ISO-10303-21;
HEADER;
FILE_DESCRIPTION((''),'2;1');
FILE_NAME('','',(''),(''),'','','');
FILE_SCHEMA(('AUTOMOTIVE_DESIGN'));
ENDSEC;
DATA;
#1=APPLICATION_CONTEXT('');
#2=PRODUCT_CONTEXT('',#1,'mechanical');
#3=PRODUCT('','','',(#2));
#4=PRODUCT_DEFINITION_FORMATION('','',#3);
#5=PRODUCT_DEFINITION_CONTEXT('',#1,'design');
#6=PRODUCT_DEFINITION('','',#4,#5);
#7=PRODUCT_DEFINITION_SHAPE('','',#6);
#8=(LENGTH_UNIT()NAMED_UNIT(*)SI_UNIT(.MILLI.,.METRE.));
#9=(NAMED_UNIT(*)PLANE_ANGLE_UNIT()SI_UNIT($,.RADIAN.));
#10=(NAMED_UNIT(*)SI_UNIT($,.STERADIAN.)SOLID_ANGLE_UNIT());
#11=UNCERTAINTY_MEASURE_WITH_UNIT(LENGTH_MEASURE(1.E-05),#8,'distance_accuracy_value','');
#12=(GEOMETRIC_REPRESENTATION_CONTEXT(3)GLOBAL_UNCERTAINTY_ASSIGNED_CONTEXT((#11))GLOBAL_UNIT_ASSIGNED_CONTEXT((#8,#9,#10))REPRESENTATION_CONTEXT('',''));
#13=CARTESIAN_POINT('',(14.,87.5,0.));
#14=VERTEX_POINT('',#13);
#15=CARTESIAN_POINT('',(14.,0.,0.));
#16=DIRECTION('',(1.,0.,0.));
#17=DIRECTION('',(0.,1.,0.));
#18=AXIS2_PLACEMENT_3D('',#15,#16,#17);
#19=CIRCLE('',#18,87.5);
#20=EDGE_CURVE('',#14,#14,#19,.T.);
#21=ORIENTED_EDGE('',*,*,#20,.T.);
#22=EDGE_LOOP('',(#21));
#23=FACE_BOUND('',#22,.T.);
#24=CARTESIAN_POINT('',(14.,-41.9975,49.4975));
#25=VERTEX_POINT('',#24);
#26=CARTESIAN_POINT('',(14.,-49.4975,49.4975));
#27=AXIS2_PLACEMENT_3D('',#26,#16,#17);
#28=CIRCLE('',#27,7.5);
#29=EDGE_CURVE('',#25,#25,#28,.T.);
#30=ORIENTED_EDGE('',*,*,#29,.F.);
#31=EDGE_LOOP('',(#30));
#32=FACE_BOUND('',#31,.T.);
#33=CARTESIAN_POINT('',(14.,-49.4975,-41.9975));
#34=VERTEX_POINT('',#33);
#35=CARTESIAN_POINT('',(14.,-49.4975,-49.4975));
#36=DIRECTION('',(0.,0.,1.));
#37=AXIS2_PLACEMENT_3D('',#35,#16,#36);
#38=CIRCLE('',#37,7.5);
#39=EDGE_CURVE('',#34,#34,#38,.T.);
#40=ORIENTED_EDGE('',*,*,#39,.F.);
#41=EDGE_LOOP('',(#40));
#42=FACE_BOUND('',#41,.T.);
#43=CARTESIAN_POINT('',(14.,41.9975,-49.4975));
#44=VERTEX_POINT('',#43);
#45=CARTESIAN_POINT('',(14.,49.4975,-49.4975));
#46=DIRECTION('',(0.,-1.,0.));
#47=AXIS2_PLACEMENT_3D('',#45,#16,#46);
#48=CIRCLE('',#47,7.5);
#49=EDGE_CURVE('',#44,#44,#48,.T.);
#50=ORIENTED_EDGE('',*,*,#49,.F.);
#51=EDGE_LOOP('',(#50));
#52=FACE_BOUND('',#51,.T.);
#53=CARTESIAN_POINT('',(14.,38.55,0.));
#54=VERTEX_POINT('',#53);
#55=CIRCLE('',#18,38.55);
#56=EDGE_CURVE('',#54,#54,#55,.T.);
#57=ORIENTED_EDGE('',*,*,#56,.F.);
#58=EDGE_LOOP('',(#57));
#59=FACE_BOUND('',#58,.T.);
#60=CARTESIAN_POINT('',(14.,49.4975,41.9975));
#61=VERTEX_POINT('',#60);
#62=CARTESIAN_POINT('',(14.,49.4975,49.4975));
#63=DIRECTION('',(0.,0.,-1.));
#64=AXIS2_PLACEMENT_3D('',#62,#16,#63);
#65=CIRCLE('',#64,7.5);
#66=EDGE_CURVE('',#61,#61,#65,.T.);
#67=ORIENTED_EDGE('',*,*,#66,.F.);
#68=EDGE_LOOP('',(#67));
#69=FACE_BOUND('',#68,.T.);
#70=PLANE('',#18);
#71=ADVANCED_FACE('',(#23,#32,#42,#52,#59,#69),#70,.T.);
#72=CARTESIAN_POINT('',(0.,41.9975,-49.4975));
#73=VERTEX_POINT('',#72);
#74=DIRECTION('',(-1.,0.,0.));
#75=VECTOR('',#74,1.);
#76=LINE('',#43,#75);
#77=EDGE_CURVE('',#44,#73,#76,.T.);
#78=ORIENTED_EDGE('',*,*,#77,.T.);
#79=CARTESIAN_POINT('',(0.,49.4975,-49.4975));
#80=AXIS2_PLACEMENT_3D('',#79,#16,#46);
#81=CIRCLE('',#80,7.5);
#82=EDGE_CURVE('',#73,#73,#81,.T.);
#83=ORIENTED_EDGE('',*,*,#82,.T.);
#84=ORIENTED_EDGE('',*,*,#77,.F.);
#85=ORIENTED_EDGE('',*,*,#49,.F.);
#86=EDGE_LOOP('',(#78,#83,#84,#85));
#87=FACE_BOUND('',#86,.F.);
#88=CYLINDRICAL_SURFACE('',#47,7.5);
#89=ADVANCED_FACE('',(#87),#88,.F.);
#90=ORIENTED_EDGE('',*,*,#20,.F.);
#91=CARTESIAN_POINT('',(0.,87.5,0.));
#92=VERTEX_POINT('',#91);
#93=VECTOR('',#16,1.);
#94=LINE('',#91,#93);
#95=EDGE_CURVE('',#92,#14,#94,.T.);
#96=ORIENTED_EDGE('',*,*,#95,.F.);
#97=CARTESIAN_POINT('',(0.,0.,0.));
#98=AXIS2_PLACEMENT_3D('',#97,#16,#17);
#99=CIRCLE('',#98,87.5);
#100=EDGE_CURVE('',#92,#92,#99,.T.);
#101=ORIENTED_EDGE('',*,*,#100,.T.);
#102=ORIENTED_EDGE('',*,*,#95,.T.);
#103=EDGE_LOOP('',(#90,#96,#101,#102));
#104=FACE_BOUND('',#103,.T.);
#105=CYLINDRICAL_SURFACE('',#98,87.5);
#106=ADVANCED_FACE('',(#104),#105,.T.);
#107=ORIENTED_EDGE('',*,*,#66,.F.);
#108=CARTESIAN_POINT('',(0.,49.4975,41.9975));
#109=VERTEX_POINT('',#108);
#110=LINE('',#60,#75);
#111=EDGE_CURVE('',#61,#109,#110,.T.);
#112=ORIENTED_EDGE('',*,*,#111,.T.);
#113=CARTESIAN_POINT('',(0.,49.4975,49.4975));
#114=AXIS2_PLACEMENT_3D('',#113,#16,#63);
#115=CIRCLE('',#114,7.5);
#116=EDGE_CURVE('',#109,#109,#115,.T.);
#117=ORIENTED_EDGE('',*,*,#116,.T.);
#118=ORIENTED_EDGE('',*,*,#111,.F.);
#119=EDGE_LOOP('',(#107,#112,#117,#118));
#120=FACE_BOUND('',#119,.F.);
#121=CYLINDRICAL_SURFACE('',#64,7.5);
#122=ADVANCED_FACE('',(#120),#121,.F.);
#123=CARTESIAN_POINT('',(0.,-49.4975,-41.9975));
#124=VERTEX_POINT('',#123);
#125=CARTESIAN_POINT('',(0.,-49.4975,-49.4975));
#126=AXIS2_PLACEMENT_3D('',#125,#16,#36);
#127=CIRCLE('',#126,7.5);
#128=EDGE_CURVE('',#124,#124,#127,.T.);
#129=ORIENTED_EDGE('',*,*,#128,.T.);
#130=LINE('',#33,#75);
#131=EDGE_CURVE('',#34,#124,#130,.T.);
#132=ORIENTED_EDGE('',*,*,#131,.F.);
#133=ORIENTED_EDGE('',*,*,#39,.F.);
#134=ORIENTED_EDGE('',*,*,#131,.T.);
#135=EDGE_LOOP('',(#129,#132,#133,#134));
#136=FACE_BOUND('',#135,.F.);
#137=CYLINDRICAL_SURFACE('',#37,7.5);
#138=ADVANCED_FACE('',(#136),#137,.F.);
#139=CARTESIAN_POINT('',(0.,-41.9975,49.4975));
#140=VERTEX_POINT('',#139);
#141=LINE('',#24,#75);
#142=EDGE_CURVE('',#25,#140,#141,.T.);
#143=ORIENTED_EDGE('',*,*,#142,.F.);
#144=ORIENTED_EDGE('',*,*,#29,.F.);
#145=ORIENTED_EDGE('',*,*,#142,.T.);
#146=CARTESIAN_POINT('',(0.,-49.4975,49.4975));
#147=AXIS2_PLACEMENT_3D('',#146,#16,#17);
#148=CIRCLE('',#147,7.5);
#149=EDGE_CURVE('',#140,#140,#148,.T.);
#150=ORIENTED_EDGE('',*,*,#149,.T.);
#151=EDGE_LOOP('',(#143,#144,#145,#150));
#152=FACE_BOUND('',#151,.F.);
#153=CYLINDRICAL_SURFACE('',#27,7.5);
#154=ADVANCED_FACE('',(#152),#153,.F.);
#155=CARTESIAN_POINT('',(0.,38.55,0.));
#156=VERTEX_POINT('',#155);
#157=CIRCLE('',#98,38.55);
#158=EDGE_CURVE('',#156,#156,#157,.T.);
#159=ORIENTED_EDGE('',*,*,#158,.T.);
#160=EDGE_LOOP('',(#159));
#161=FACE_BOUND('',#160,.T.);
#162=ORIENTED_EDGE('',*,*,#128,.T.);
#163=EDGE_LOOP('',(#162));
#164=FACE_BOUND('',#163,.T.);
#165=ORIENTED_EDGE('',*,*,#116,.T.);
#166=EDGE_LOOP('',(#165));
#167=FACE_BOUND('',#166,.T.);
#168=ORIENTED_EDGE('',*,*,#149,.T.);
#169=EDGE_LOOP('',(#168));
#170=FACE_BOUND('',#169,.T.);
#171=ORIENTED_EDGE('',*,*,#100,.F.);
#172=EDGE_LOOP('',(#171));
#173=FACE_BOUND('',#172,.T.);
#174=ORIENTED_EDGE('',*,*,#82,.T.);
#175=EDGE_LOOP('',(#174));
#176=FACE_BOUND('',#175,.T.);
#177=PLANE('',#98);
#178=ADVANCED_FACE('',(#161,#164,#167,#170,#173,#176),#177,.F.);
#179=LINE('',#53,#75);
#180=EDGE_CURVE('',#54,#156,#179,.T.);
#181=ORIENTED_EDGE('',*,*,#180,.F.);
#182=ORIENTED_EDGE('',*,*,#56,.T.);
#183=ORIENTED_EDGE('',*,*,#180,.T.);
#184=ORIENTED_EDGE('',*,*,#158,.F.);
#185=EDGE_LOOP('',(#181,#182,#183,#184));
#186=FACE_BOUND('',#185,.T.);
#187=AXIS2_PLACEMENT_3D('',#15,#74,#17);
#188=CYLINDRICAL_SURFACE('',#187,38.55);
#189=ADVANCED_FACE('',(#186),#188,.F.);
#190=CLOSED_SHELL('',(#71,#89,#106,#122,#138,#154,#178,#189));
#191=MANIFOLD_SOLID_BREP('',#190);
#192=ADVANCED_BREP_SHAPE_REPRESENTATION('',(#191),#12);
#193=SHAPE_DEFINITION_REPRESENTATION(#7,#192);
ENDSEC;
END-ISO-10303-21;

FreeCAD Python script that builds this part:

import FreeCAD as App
import Part
import Sketcher
from FreeCAD import Vector

doc = App.newDocument("Part")
body = doc.addObject("PartDesign::Body", "Body")

# Sketch on XY plane
sketch1 = doc.addObject("Sketcher::SketchObject", "Sketch")
body.addObject(sketch1)
sketch1.AttachmentSupport = (doc.XY_Plane, [""])
sketch1.MapMode = "FlatFace"
sketch1.addGeometry([
    Part.LineSegment(Vector(0, 39, 0), Vector(14, 39, 0)),
    Part.LineSegment(Vector(14, 39, 0), Vector(14, 88, 0)),
    Part.LineSegment(Vector(14, 88, 0), Vector(0, 88, 0)),
    Part.LineSegment(Vector(0, 88, 0), Vector(0, 39, 0)),
], False)
sketch1.addConstraint([
    Sketcher.Constraint("Coincident", 0, 2, 1, 1),
    Sketcher.Constraint("Coincident", 1, 2, 2, 1),
    Sketcher.Constraint("Coincident", 2, 2, 3, 1),
    Sketcher.Constraint("Coincident", 3, 2, 0, 1),
    Sketcher.Constraint("Horizontal", 0),
    Sketcher.Constraint("Vertical", 1),
    Sketcher.Constraint("Horizontal", 2),
    Sketcher.Constraint("Vertical", 3),
    Sketcher.Constraint("PointOnObject", 2, 2, -2),
    Sketcher.Constraint("DistanceX", 0, 1, 0, 2, 14.0),
    Sketcher.Constraint("DistanceY", 1, 1, 1, 2, 48.95),
    Sketcher.Constraint("DistanceY", -1, 1, 1, 2, 87.5),
])
revolution = doc.addObject("PartDesign::Revolution", "Revolution")
body.addObject(revolution)
revolution.Profile = sketch1
revolution.ReferenceAxis = (sketch1, ["H_Axis"])
revolution.Angle = 360

# Sketch on YZ plane
sketch2 = doc.addObject("Sketcher::SketchObject", "Sketch001")
body.addObject(sketch2)
sketch2.AttachmentSupport = (doc.YZ_Plane, [""])
sketch2.MapMode = "FlatFace"
sketch2.AttachmentOffset = App.Placement(Vector(0, 0, 14), App.Rotation())
sketch2.addGeometry(Part.Circle(Vector(49, 49, 0), Vector(0, 0, 1), 8), False)
sketch2.addConstraint([
    Sketcher.Constraint("Diameter", 0, 15.0),
    Sketcher.Constraint("DistanceX", -1, 1, 0, 3, 49.4975),
    Sketcher.Constraint("DistanceY", -1, 1, 0, 3, 49.4975),
])
pocket1 = doc.addObject("PartDesign::Pocket", "Pocket")
body.addObject(pocket1)
pocket1.Profile = sketch2
pocket1.Type = "ThroughAll"
doc.recompute()

polarpattern = doc.addObject("PartDesign::PolarPattern", "PolarPattern")
body.addObject(polarpattern)
polarpattern.Originals = [pocket1]
polarpattern.Axis = (doc.X_Axis, [""])
polarpattern.Angle = 360
polarpattern.Occurrences = 4
body.Tip = polarpattern

doc.recompute()
